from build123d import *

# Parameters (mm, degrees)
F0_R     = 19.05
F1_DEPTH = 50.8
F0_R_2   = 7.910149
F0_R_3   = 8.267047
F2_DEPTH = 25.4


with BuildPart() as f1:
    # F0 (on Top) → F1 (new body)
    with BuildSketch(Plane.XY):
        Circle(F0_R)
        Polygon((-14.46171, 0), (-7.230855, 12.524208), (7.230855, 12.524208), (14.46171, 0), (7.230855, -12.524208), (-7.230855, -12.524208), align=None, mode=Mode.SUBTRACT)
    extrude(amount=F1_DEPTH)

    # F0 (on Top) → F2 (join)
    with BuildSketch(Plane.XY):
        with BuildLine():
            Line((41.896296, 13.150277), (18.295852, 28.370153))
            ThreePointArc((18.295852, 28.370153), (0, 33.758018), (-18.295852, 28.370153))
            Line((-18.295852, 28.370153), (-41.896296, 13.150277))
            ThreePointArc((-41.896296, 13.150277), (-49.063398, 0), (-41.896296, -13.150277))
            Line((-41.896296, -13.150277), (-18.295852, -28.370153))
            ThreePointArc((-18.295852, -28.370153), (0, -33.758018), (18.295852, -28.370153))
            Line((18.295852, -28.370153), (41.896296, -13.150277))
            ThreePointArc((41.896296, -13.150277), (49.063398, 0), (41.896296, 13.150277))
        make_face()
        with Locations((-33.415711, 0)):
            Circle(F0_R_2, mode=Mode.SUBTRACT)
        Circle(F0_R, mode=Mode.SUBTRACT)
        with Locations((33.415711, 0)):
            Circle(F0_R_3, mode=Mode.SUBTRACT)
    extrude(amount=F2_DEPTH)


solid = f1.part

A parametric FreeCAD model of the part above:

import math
import FreeCAD as App
import Part
import Sketcher
Q = App.Units.Quantity

doc = App.newDocument("Part")
body = doc.addObject("PartDesign::Body", "Body")

sketch1 = body.newObject("Sketcher::SketchObject", "Sketch")
sketch1.AttachmentSupport = (doc.getObject("XY_Plane"), [""])
sketch1.MapMode = "FlatFace"
sketch1.addGeometry([
    Part.Circle(App.Vector(0, 0, 0), App.Vector(0, 0, 1), 19),
    Part.LineSegment(App.Vector(-7, -13, 0), App.Vector(-14, 0, 0)),
    Part.LineSegment(App.Vector(-14, 0, 0), App.Vector(-7, 13, 0)),
    Part.LineSegment(App.Vector(-7, 13, 0), App.Vector(7, 13, 0)),
    Part.LineSegment(App.Vector(7, 13, 0), App.Vector(14, 0, 0)),
    Part.LineSegment(App.Vector(14, 0, 0), App.Vector(7, -13, 0)),
    Part.LineSegment(App.Vector(7, -13, 0), App.Vector(-7, -13, 0)),
], False)
sketch1.addConstraint([
    Sketcher.Constraint("Coincident", 1, 2, 2, 1),
    Sketcher.Constraint("Coincident", 2, 2, 3, 1),
    Sketcher.Constraint("Coincident", 3, 2, 4, 1),
    Sketcher.Constraint("Coincident", 4, 2, 5, 1),
    Sketcher.Constraint("Coincident", 5, 2, 6, 1),
    Sketcher.Constraint("Coincident", 6, 2, 1, 1),
    Sketcher.Constraint("Horizontal", 3),
    Sketcher.Constraint("Horizontal", 6),
    Sketcher.Constraint("Coincident", 0, 3, -1, 1),
    Sketcher.Constraint("Symmetric", 1, 2, 4, 2, -1, 1),
    Sketcher.Constraint("Symmetric", 2, 2, 5, 2, -1, 1),
    Sketcher.Constraint("PointOnObject", 1, 2, -1),
    Sketcher.Constraint("Parallel", 1, 4),
    Sketcher.Constraint("Vertical", 3, 2, 5, 2),
    Sketcher.Constraint("Diameter", 0, Q("1.5 in")),
    Sketcher.Constraint("Angle", 1, Q("120 deg")),
    Sketcher.Constraint("DistanceX", 3, 1, 3, 2, 14.46171),
    Sketcher.Constraint("Distance", 1, 14.46171),
])
pad1 = body.newObject("PartDesign::Pad", "Pad")
pad1.Profile = sketch1
pad1.Length = Q("2 in")

sketch2 = body.newObject("Sketcher::SketchObject", "Sketch001")
sketch2.AttachmentSupport = (doc.getObject("XY_Plane"), [""])
sketch2.MapMode = "FlatFace"
sketch2.addGeometry([
    Part.LineSegment(App.Vector(42, 13, 0), App.Vector(18, 28, 0)),
    Part.ArcOfCircle(Part.Circle(App.Vector(0, 0, 0), App.Vector(0, 0, 1), 34), math.radians(57), math.radians(123)),
    Part.LineSegment(App.Vector(-18, 28, 0), App.Vector(-42, 13, 0)),
    Part.ArcOfCircle(Part.Circle(App.Vector(-33, 0, 0), App.Vector(0, 0, 1), 16), math.radians(123), math.radians(237)),
    Part.LineSegment(App.Vector(-42, -13, 0), App.Vector(-18, -28, 0)),
    Part.ArcOfCircle(Part.Circle(App.Vector(0, 0, 0), App.Vector(0, 0, 1), 34), math.radians(-123), math.radians(-57)),
    Part.LineSegment(App.Vector(18, -28, 0), App.Vector(42, -13, 0)),
    Part.ArcOfCircle(Part.Circle(App.Vector(33, 0, 0), App.Vector(0, 0, 1), 16), math.radians(-57), math.radians(57)),
    Part.Circle(App.Vector(-33, 0, 0), App.Vector(0, 0, 1), 8),
    Part.Circle(App.Vector(0, 0, 0), App.Vector(0, 0, 1), 19),
    Part.Circle(App.Vector(33, 0, 0), App.Vector(0, 0, 1), 8),
], False)
sketch2.addConstraint([
    Sketcher.Constraint("Tangent", 0, 2, 1, 1),
    Sketcher.Constraint("Tangent", 1, 2, 2, 1),
    Sketcher.Constraint("Tangent", 2, 2, 3, 1),
    Sketcher.Constraint("Tangent", 3, 2, 4, 1),
    Sketcher.Constraint("Tangent", 4, 2, 5, 1),
    Sketcher.Constraint("Tangent", 5, 2, 6, 1),
    Sketcher.Constraint("Tangent", 6, 2, 7, 1),
    Sketcher.Constraint("Tangent", 7, 2, 0, 1),
    Sketcher.Constraint("Coincident", 1, 3, -1, 1),
    Sketcher.Constraint("Coincident", 5, 3, -1, 1),
    Sketcher.Constraint("Coincident", 9, 3, -1, 1),
    Sketcher.Constraint("Coincident", 8, 3, 3, 3),
    Sketcher.Constraint("Coincident", 10, 3, 7, 3),
    Sketcher.Constraint("Equal", 1, 5),
    Sketcher.Constraint("Equal", 3, 7),
    Sketcher.Constraint("Symmetric", 3, 3, 7, 3, -1, 1),
    Sketcher.Constraint("PointOnObject", 3, 3, -1),
    Sketcher.Constraint("Diameter", 9, Q("1.5 in")),
    Sketcher.Constraint("Radius", 1, 33.758018),
    Sketcher.Constraint("Diameter", 8, 15.820298),
    Sketcher.Constraint("Diameter", 10, 16.534094),
    Sketcher.Constraint("Radius", 3, 15.647687),
    Sketcher.Constraint("Distance", 0, 28.082478),
])
pad2 = body.newObject("PartDesign::Pad", "Pad001")
pad2.Profile = sketch2
pad2.Length = Q("1 in")

doc.recompute()
